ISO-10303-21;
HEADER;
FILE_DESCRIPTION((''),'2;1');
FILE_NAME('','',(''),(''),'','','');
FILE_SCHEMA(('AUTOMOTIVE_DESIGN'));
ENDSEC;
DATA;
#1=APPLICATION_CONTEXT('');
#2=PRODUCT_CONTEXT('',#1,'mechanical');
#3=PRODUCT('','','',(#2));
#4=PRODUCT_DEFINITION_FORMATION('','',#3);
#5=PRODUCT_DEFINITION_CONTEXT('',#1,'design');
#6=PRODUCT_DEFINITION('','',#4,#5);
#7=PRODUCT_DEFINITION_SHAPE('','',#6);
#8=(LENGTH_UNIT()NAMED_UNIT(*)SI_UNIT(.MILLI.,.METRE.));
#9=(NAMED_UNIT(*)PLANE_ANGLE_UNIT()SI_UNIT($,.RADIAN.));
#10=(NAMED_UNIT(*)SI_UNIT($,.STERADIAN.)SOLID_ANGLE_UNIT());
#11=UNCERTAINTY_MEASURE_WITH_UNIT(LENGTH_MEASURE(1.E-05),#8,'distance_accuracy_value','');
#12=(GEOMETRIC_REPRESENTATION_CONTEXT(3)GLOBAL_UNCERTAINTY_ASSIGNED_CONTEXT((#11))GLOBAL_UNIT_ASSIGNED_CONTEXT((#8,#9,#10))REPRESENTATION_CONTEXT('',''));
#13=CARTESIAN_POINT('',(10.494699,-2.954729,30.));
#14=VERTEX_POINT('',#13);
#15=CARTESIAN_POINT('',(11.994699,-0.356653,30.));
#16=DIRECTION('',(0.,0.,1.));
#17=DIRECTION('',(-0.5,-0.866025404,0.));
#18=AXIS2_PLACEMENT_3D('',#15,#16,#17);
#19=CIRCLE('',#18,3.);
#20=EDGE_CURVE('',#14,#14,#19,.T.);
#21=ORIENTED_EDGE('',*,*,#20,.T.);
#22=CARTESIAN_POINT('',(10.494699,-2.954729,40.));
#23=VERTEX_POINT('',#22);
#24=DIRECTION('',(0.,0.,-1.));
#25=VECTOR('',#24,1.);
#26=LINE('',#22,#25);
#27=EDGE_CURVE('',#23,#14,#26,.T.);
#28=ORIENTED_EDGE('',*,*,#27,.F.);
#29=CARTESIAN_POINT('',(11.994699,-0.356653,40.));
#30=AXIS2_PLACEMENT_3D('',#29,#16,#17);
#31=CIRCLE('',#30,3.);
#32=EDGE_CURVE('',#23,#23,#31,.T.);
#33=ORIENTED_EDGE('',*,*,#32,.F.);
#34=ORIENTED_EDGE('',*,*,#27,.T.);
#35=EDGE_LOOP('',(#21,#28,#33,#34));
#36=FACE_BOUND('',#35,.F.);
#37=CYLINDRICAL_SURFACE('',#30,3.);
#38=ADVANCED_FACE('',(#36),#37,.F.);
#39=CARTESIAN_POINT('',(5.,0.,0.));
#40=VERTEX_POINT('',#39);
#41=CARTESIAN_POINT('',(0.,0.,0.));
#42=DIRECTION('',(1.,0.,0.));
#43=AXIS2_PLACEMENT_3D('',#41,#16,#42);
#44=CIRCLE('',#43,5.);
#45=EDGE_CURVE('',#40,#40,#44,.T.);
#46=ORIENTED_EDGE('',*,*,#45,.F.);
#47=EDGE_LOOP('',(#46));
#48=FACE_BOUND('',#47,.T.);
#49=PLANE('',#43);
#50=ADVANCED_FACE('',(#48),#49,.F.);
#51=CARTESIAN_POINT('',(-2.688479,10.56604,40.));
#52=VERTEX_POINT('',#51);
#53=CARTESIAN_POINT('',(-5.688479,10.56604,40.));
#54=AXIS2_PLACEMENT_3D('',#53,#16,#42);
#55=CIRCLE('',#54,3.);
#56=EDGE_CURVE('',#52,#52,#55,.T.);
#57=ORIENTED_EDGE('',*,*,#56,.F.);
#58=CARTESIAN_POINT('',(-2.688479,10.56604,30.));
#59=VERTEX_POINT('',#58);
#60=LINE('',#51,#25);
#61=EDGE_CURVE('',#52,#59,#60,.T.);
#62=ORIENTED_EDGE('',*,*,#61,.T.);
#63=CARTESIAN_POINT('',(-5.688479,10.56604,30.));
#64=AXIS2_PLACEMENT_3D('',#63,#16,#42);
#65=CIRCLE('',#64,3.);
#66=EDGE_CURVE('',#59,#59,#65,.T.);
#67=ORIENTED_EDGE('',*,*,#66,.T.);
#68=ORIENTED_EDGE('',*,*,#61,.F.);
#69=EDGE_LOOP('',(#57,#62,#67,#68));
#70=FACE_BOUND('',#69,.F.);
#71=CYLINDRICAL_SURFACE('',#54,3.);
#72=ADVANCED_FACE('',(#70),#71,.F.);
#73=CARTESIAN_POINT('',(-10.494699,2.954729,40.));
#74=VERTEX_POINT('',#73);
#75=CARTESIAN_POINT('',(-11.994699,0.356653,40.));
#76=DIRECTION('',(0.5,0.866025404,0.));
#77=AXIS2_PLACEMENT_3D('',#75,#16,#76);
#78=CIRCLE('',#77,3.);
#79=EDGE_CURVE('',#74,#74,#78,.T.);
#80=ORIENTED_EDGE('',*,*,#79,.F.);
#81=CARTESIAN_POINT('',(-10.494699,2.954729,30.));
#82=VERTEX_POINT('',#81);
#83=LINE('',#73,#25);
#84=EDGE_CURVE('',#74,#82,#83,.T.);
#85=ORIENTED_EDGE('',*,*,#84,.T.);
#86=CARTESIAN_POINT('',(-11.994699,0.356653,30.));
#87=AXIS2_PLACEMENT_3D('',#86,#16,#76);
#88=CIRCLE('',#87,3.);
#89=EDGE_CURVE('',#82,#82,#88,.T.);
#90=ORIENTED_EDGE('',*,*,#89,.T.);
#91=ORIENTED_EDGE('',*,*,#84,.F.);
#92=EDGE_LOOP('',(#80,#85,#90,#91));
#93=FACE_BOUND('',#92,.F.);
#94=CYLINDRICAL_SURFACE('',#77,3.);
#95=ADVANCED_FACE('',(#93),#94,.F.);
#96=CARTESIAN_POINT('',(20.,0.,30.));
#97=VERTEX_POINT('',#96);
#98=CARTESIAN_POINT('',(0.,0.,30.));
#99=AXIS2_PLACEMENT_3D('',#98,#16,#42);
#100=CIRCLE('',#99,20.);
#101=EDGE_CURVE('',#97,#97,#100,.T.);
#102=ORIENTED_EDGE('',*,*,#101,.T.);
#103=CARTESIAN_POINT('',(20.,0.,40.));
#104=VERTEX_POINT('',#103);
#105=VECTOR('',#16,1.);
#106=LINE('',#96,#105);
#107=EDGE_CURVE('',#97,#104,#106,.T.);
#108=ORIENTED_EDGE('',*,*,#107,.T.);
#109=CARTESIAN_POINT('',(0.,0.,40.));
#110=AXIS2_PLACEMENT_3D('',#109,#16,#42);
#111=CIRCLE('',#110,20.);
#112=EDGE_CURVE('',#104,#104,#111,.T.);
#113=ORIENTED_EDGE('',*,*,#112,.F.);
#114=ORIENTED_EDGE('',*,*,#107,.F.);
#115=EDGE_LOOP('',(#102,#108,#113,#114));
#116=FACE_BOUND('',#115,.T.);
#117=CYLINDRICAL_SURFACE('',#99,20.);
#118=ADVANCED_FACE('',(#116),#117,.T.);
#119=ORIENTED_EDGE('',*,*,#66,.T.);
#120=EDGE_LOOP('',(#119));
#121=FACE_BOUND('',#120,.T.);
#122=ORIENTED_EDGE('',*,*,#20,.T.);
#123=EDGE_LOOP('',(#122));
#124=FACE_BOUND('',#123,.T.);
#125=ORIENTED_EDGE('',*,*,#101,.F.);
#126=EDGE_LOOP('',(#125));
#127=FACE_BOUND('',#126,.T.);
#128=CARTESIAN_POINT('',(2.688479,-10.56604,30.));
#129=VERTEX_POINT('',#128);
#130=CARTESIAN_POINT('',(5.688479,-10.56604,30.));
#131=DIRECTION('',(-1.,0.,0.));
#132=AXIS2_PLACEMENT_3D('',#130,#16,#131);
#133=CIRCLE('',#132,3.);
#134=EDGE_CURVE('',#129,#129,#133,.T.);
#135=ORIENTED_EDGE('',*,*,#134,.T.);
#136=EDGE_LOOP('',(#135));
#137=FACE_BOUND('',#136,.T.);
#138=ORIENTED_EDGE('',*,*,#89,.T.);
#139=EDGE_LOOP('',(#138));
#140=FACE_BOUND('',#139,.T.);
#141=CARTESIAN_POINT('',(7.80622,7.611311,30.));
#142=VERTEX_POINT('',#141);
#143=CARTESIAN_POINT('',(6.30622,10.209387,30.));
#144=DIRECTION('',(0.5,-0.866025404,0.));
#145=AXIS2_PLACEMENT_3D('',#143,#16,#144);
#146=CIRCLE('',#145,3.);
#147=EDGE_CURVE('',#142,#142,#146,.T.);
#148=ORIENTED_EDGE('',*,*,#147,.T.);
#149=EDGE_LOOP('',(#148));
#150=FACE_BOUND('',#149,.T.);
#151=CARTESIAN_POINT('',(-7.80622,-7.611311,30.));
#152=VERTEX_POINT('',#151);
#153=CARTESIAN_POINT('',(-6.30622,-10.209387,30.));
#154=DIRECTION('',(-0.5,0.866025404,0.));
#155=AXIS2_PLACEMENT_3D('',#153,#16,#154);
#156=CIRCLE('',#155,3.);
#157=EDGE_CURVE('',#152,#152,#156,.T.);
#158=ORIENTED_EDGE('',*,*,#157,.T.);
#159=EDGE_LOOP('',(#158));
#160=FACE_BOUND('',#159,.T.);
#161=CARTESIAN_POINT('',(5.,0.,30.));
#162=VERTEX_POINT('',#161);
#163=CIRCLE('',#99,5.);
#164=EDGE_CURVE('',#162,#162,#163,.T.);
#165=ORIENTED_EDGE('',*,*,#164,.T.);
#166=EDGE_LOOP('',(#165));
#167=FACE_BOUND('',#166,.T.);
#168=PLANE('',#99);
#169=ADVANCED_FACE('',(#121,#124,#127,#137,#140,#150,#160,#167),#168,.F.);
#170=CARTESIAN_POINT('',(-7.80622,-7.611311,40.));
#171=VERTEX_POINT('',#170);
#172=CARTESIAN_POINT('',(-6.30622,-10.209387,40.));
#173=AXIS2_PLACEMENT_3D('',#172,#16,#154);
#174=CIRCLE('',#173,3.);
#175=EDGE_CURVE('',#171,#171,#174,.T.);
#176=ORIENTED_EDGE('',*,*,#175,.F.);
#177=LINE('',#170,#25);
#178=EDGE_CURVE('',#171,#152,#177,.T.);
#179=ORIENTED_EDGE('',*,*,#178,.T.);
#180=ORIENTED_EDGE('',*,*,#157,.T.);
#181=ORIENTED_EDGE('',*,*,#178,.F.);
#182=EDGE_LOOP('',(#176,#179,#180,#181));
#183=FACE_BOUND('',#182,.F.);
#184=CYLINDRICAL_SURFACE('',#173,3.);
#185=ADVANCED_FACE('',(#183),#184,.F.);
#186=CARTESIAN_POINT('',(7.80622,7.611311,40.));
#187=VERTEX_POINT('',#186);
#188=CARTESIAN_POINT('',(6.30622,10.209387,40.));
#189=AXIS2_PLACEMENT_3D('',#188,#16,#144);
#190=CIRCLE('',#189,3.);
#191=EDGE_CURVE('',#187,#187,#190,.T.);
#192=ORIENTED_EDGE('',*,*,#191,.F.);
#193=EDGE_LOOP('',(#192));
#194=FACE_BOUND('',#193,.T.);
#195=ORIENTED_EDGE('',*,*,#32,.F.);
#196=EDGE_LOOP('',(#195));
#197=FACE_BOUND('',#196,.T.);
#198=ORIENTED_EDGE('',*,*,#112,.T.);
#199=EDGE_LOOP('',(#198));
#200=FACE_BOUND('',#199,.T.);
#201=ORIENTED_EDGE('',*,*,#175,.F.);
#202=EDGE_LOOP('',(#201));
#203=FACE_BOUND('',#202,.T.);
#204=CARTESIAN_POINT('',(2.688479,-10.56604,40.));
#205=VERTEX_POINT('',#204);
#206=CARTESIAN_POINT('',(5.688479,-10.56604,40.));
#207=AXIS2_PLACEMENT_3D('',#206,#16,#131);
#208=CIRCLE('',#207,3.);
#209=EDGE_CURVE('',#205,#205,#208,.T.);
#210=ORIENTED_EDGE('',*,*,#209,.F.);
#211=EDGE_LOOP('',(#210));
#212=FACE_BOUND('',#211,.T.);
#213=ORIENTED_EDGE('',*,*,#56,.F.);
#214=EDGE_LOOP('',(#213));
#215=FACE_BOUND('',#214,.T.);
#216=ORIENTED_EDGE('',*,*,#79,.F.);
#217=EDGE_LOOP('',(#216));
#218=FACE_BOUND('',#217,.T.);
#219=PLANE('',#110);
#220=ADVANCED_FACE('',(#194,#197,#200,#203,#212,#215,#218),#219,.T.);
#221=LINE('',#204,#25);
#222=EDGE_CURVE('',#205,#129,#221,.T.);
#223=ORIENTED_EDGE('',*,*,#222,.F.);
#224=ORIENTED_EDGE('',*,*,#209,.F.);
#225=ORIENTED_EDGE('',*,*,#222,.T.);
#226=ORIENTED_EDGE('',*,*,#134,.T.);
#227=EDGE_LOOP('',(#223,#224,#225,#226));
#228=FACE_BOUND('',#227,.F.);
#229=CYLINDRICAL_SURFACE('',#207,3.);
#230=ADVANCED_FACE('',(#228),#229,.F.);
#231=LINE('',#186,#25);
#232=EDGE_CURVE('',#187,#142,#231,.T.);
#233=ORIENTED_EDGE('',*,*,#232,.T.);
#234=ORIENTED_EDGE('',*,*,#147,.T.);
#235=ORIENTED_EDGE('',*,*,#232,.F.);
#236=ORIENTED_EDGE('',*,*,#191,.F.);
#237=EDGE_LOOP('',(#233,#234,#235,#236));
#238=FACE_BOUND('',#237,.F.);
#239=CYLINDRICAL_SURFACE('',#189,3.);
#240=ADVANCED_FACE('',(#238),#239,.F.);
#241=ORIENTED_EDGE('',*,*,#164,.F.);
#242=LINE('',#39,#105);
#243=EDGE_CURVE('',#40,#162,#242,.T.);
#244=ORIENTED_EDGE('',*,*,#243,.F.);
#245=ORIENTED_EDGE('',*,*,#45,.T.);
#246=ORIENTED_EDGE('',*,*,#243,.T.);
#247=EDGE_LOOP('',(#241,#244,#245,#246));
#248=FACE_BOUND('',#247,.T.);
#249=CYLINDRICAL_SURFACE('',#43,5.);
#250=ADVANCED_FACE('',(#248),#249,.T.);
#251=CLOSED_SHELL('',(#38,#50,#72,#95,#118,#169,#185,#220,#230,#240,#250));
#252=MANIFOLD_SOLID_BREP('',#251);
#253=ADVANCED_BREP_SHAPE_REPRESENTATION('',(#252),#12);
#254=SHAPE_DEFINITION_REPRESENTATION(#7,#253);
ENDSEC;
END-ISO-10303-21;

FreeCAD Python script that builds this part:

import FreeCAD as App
import Part
import Sketcher

V = App.Vector
Q = App.Units.Quantity


def add_polygon(sketch, points):
    """Adds a closed chain of lines whose ends are joined by coincident constraints."""
    first, n = sketch.GeometryCount, len(points)
    for a, b in zip(points, points[1:] + points[:1]):
        sketch.addGeometry(Part.LineSegment(App.Vector(*a, 0), App.Vector(*b, 0)), False)
    for i in range(n):
        sketch.addConstraint(Sketcher.Constraint("Coincident", first + i, 2, first + (i + 1) % n, 1))

doc = App.newDocument("Part")
body = doc.addObject("PartDesign::Body", "Body")

sketch1 = body.newObject("Sketcher::SketchObject", "Sketch")
sketch1.AttachmentSupport = (doc.getObject("XZ_Plane"), [""])
sketch1.MapMode = "FlatFace"
add_polygon(sketch1, [(0, 0), (5, 0), (5, 30), (20, 30), (20, 40), (0, 40)])
sketch1.addConstraint([
    Sketcher.Constraint("Horizontal", 0),
    Sketcher.Constraint("Vertical", 1),
    Sketcher.Constraint("Horizontal", 2),
    Sketcher.Constraint("Vertical", 3),
    Sketcher.Constraint("Horizontal", 4),
    Sketcher.Constraint("Vertical", 5),
    Sketcher.Constraint("Coincident", 5, 2, -1, 1),
    Sketcher.Constraint("DistanceX", 0, 1, 0, 2, Q("5 mm")),
    Sketcher.Constraint("DistanceX", 2, 1, 2, 2, Q("15 mm")),
    Sketcher.Constraint("DistanceY", 1, 1, 1, 2, Q("30 mm")),
    Sketcher.Constraint("DistanceY", 3, 1, 3, 2, Q("10 mm")),
])
revolution = body.newObject("PartDesign::Revolution", "Revolution")
revolution.Profile = sketch1
revolution.ReferenceAxis = (sketch1, ["V_Axis"])
revolution.Angle = 360

sketch2 = body.newObject("Sketcher::SketchObject", "Sketch001")
sketch2.AttachmentSupport = (doc.getObject("XY_Plane"), [""])
sketch2.MapMode = "FlatFace"
sketch2.AttachmentOffset = App.Placement(V(0, 0, 40), App.Rotation())
sketch2.addGeometry(Part.Circle(V(-5.7, 10.6, 0), V(0, 0, 1), 3), False)
sketch2.addConstraint([
    Sketcher.Constraint("Diameter", 0, Q("6 mm")),
    Sketcher.Constraint("DistanceX", 0, 3, -1, 1, Q("5.688479 mm")),
    Sketcher.Constraint("DistanceY", -1, 1, 0, 3, Q("10.56604 mm")),
])
pocket1 = body.newObject("PartDesign::Pocket", "Pocket")
pocket1.Profile = sketch2
pocket1.Length = 10
doc.recompute()

polarpattern = body.newObject("PartDesign::PolarPattern", "PolarPattern")
polarpattern.Originals = [pocket1]
polarpattern.Axis = (doc.getObject("Z_Axis"), [""])
polarpattern.Angle = 360
polarpattern.Occurrences = 6
body.Tip = polarpattern

doc.recompute()
